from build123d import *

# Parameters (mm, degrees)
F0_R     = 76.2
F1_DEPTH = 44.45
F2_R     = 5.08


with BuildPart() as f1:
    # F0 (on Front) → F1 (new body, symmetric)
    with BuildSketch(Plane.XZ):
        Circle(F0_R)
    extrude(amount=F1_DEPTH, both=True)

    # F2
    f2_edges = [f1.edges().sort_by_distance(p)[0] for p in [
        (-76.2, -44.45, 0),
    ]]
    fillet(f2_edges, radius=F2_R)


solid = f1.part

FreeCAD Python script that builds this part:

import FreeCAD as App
import Part
import Sketcher
Q = App.Units.Quantity


def edges_at(feature, points):
    """Names of the edges that pass closest to the given points."""
    edges = feature.Shape.Edges
    near = lambda p: min(range(len(edges)), key=lambda i: edges[i].distToShape(Part.Vertex(*p))[0])
    return sorted({f"Edge{near(p) + 1}" for p in points})

doc = App.newDocument("Part")
body = doc.addObject("PartDesign::Body", "Body")

# Sketch on XZ plane
sketch1 = body.newObject("Sketcher::SketchObject", "Sketch")
sketch1.AttachmentSupport = (doc.getObject("XZ_Plane"), [""])
sketch1.MapMode = "FlatFace"
sketch1.addGeometry(Part.Circle(App.Vector(0, 0, 0), App.Vector(0, 0, 1), 76.2), False)
sketch1.addConstraint([
    Sketcher.Constraint("Coincident", 0, 3, -1, 1),
    Sketcher.Constraint("Diameter", 0, Q("6 in")),
])
pad1 = body.newObject("PartDesign::Pad", "Pad")
pad1.Profile = sketch1
pad1.Length = Q("3.5 in")
pad1.Midplane = True
doc.recompute()

fillet = body.newObject("PartDesign::Fillet", "Fillet")
fillet.Base = (pad1, edges_at(pad1, [(-76.2, -44.45, 0)]))
fillet.Radius = Q("0.2 in")

doc.recompute()
